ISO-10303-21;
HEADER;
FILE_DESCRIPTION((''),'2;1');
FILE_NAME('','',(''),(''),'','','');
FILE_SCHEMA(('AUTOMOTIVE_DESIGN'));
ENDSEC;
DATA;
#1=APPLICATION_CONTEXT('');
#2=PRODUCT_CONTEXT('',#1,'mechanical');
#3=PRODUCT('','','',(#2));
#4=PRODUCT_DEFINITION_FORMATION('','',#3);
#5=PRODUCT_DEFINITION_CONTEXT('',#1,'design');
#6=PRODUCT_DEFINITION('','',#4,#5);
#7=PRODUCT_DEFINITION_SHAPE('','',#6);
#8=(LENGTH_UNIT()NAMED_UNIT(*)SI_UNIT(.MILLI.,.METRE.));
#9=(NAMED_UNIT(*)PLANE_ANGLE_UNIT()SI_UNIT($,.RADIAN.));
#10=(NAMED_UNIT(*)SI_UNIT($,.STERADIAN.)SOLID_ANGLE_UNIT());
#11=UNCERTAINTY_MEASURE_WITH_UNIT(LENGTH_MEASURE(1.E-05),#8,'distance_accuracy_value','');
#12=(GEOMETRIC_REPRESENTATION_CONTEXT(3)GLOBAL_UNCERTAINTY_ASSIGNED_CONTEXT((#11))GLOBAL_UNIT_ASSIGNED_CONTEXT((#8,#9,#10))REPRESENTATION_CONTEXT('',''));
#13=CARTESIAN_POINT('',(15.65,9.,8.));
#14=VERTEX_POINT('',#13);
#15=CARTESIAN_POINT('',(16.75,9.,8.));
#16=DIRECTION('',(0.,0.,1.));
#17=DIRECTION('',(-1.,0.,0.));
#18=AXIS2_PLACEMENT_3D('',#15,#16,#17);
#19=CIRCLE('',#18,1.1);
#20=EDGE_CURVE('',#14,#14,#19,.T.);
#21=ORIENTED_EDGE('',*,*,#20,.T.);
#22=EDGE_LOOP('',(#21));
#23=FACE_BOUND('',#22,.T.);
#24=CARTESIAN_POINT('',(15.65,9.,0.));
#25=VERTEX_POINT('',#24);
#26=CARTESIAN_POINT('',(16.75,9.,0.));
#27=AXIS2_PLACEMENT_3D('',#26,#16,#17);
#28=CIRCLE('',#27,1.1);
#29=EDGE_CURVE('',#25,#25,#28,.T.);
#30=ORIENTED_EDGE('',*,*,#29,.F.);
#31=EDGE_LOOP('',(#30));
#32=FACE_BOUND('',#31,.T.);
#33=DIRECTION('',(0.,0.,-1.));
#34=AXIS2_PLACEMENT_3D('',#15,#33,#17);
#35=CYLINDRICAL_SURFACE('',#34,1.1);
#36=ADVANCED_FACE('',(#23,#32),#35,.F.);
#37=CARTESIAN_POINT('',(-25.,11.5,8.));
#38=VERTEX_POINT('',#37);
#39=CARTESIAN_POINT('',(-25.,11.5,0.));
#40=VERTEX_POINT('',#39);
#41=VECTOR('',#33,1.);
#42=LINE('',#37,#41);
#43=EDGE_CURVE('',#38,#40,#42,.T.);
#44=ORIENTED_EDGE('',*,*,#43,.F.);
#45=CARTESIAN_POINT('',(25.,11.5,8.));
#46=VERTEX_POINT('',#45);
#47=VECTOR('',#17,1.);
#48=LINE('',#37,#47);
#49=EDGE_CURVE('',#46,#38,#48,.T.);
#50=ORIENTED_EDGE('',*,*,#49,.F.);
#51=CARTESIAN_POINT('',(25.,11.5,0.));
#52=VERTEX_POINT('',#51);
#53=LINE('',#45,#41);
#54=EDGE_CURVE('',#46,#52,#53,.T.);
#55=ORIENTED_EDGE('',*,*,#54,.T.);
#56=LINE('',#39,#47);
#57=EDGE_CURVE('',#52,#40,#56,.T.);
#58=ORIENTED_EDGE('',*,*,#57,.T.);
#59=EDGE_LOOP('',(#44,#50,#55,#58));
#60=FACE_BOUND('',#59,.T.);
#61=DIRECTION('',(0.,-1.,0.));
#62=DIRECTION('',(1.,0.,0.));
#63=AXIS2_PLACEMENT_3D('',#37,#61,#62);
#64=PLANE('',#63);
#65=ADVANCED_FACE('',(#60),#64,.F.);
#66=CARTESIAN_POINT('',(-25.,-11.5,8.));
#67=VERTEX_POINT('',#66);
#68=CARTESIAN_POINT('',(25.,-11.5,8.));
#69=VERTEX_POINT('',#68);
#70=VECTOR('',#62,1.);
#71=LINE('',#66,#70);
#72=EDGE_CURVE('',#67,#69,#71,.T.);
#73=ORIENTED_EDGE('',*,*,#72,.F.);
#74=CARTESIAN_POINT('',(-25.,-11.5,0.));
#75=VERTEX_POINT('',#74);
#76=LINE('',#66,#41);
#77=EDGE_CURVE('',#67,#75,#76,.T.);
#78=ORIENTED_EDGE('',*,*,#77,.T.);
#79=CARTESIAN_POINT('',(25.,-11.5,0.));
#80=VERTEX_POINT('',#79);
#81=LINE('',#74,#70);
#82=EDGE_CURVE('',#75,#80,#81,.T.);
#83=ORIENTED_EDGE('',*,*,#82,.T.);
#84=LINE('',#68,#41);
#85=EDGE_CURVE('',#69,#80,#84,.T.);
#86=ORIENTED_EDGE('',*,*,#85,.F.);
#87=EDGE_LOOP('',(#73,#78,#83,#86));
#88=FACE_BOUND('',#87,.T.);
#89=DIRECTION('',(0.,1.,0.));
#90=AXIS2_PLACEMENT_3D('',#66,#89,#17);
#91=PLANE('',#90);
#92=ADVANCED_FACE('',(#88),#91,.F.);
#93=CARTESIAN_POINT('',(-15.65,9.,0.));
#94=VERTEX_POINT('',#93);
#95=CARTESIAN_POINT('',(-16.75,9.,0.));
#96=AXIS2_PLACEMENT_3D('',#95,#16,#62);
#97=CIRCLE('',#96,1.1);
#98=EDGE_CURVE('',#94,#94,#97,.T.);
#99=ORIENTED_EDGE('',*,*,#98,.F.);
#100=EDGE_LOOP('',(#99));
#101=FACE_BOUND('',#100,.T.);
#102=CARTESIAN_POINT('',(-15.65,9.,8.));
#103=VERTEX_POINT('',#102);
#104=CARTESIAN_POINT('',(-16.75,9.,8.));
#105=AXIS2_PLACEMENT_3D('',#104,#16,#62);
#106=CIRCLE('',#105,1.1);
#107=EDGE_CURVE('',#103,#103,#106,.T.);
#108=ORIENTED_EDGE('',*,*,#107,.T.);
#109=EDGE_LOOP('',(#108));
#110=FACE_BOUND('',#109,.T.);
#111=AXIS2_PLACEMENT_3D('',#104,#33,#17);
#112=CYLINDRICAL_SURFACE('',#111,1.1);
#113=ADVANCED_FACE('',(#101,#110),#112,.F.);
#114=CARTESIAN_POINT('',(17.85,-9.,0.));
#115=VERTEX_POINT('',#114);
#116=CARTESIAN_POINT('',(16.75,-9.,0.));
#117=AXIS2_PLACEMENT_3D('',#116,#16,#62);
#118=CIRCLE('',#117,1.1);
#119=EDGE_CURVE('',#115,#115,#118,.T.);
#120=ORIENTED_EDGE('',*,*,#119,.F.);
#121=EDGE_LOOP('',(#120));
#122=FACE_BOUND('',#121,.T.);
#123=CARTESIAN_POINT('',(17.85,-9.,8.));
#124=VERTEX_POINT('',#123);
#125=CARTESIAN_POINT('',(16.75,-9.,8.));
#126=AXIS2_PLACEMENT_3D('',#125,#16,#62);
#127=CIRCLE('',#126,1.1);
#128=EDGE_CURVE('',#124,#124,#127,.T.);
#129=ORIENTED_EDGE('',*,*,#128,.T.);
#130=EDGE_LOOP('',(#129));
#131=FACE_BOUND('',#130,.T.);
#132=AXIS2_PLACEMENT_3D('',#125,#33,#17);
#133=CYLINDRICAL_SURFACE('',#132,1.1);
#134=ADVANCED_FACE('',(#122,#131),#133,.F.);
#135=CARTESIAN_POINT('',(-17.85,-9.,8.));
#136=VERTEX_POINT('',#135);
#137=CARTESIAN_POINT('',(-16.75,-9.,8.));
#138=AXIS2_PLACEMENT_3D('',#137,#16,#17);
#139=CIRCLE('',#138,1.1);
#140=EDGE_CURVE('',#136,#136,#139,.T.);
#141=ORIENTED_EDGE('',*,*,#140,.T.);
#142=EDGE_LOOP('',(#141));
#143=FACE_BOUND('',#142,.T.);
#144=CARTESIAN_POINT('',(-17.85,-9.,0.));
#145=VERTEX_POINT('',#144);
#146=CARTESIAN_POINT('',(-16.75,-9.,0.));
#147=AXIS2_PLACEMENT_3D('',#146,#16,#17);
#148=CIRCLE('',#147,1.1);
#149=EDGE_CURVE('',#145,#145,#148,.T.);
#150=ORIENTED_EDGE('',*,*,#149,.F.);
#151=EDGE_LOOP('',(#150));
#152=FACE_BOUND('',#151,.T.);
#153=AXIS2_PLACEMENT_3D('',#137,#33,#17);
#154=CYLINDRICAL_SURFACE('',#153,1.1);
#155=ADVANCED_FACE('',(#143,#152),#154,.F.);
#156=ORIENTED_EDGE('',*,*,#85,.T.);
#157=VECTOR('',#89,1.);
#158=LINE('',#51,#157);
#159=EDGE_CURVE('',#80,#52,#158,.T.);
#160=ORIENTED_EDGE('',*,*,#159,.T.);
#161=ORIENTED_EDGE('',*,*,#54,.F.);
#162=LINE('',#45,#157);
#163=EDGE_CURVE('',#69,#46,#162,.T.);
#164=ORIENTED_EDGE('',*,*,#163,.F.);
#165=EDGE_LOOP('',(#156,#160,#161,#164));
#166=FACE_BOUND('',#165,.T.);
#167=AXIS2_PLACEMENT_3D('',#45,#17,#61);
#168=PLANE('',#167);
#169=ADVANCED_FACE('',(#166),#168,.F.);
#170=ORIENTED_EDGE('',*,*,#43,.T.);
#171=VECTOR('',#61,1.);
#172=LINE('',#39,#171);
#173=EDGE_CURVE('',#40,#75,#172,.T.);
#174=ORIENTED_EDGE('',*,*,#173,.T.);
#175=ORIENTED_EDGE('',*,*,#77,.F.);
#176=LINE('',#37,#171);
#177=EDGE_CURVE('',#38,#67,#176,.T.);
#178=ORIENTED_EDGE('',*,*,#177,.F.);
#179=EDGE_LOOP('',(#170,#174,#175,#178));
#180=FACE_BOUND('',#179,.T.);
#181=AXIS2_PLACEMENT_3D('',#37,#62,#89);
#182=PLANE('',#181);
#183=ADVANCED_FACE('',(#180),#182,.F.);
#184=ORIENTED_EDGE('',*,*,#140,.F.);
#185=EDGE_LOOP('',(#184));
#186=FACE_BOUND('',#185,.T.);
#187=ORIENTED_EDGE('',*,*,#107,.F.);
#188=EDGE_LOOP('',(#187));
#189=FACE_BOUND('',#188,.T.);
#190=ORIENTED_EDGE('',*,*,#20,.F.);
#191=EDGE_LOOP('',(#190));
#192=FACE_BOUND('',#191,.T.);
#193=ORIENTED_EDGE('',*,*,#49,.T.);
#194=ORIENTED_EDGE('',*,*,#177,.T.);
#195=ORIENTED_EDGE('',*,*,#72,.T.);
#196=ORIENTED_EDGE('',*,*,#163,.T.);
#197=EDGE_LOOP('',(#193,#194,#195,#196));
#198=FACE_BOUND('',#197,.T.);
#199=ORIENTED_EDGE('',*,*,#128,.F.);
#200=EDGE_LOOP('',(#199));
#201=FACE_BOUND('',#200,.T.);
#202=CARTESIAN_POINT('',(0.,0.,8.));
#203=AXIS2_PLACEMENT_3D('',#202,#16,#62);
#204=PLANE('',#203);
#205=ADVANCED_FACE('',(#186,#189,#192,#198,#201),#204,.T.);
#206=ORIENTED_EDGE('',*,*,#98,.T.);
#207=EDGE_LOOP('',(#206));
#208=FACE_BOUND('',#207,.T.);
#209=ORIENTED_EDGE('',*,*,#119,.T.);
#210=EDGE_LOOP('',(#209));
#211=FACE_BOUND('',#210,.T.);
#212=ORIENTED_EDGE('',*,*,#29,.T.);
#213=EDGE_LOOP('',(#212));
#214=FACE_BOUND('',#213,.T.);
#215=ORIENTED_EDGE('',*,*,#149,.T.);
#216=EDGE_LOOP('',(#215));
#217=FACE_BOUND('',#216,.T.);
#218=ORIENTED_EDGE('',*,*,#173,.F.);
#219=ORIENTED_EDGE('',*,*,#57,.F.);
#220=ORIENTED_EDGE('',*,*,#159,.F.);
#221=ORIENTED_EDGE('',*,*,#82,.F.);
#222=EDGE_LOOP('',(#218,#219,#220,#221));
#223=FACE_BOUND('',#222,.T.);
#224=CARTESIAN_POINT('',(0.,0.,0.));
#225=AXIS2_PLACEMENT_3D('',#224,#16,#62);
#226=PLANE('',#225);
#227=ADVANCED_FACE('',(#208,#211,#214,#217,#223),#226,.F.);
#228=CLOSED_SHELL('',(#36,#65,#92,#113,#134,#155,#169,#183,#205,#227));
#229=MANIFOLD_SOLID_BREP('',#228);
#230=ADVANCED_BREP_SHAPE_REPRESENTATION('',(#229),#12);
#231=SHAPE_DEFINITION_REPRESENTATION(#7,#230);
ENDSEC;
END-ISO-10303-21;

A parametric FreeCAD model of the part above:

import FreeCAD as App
import Part
import Sketcher

doc = App.newDocument("Part")
params = doc.addObject("Spreadsheet::Sheet", "Params")
for row, (alias, value) in enumerate([
    ("sketch1_diameter", "2.2 mm"),
    ("sketch1_width", "50 mm"),
    ("sketch1_height", "23 mm"),
    ("pad1_length", "8 mm"),
], start=1):
    params.set(f"A{row}", alias)
    params.set(f"B{row}", "=" + value)
    params.setAlias(f"B{row}", alias)

body = doc.addObject("PartDesign::Body", "Body")

# Sketch on XY plane
sketch1 = body.newObject("Sketcher::SketchObject", "Sketch")
sketch1.AttachmentSupport = (doc.getObject("XY_Plane"), [""])
sketch1.MapMode = "FlatFace"
sketch1.addGeometry([
    Part.LineSegment(App.Vector(-25, 11.5, 0), App.Vector(-25, -11.5, 0)),  # 0
    Part.LineSegment(App.Vector(-25, -11.5, 0), App.Vector(25, -11.5, 0)),  # 1
    Part.LineSegment(App.Vector(25, -11.5, 0), App.Vector(25, 11.5, 0)),  # 2
    Part.LineSegment(App.Vector(25, 11.5, 0), App.Vector(-25, 11.5, 0)),  # 3
    Part.Circle(App.Vector(-16.8, -9, 0), App.Vector(0, 0, 1), 1.1),  # 4
    Part.Circle(App.Vector(16.8, -9, 0), App.Vector(0, 0, 1), 1.1),  # 5
    Part.Circle(App.Vector(-16.8, 9, 0), App.Vector(0, 0, 1), 1.1),  # 6
    Part.Circle(App.Vector(16.8, 9, 0), App.Vector(0, 0, 1), 1.1),  # 7
], False)
sketch1.addConstraint([
    Sketcher.Constraint("Coincident", 0, 2, 1, 1),
    Sketcher.Constraint("Coincident", 1, 2, 2, 1),
    Sketcher.Constraint("Coincident", 2, 2, 3, 1),
    Sketcher.Constraint("Coincident", 3, 2, 0, 1),
    Sketcher.Constraint("Vertical", 0),
    Sketcher.Constraint("Horizontal", 1),
    Sketcher.Constraint("Vertical", 2),
    Sketcher.Constraint("Horizontal", 3),
    Sketcher.Constraint("Equal", 4, 5),
    Sketcher.Constraint("Equal", 5, 6),
    Sketcher.Constraint("Equal", 6, 7),
    Sketcher.Constraint("Symmetric", 5, 3, 6, 3, -1, 1),
    Sketcher.Constraint("Symmetric", 4, 3, 7, 3, -1, 1),
    Sketcher.Constraint("Symmetric", 0, 2, 2, 2, -1, 1),
    Sketcher.Constraint("Symmetric", 4, 3, 5, 3, -2),
    Sketcher.Constraint("Diameter", 4, 2.2),
    Sketcher.Constraint("DistanceX", 1, 1, 1, 2, 50.0),
    Sketcher.Constraint("DistanceY", 0, 2, 0, 1, 23.0),
    Sketcher.Constraint("DistanceY", 4, 3, -1, 1, 9.0),
    Sketcher.Constraint("DistanceX", 4, 3, 5, 3, 33.5),
])
sketch1.setExpression("Constraints[15]", "Params.sketch1_diameter")
sketch1.setExpression("Constraints[16]", "Params.sketch1_width")
sketch1.setExpression("Constraints[17]", "Params.sketch1_height")
pad1 = body.newObject("PartDesign::Pad", "Pad")
pad1.Profile = sketch1
pad1.setExpression("Length", "Params.pad1_length")

doc.recompute()
